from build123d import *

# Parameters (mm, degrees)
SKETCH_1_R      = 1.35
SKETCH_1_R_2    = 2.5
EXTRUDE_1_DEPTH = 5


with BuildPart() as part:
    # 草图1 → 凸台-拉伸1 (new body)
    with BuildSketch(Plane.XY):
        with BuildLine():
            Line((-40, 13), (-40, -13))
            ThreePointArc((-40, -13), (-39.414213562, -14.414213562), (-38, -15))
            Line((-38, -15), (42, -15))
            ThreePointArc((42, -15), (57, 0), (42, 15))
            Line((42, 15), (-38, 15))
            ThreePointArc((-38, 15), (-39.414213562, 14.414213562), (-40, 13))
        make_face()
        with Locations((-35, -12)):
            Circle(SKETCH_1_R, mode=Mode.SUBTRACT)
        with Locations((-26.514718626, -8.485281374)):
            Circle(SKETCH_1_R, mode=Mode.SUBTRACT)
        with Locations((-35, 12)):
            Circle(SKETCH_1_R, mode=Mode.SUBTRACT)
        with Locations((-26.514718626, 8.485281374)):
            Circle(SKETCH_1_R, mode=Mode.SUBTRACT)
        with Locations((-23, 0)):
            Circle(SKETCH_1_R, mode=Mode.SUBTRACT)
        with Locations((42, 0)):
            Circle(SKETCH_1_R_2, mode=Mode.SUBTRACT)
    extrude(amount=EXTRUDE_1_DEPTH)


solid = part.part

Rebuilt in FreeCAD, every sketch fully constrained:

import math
import FreeCAD as App
import Part
import Sketcher
Q = App.Units.Quantity

doc = App.newDocument("Part")
body = doc.addObject("PartDesign::Body", "Body")

sketch1 = body.newObject("Sketcher::SketchObject", "Sketch")
sketch1.AttachmentSupport = (doc.getObject("XY_Plane"), [""])
sketch1.MapMode = "FlatFace"
sketch1.addGeometry(Part.LineSegment(App.Vector(-40, 13, 0), App.Vector(-40, -13, 0)), False)
sketch1.addGeometry(Part.ArcOfCircle(Part.Circle(App.Vector(-38, -13, 0), App.Vector(0, 0, 1), 2), math.radians(-180), math.radians(-90)), False)
sketch1.addGeometry(Part.LineSegment(App.Vector(-38, -15, 0), App.Vector(42, -15, 0)), False)
sketch1.addGeometry(Part.ArcOfCircle(Part.Circle(App.Vector(42, 0, 0), App.Vector(0, 0, 1), 15), math.radians(-90), math.radians(90)), False)
sketch1.addGeometry(Part.LineSegment(App.Vector(42, 15, 0), App.Vector(-38, 15, 0)), False)
sketch1.addGeometry(Part.ArcOfCircle(Part.Circle(App.Vector(-38, 13, 0), App.Vector(0, 0, 1), 2), math.radians(90), math.radians(180)), False)
sketch1.addGeometry(Part.Circle(App.Vector(-35, -12, 0), App.Vector(0, 0, 1), 1.35), False)
sketch1.addGeometry(Part.Circle(App.Vector(-26.514719, -8.485281, 0), App.Vector(0, 0, 1), 1.35), False)
sketch1.addGeometry(Part.Circle(App.Vector(-23, 0, 0), App.Vector(0, 0, 1), 1.35), False)
sketch1.addGeometry(Part.Circle(App.Vector(-26.514719, 8.485281, 0), App.Vector(0, 0, 1), 1.35), False)
sketch1.addGeometry(Part.Circle(App.Vector(-35, 12, 0), App.Vector(0, 0, 1), 1.35), False)
sketch1.addGeometry(Part.Circle(App.Vector(42, 0, 0), App.Vector(0, 0, 1), 2.5), False)
sketch1.addConstraint(Sketcher.Constraint("Tangent", 0, 2, 1, 1))
sketch1.addConstraint(Sketcher.Constraint("Tangent", 1, 2, 2, 1))
sketch1.addConstraint(Sketcher.Constraint("Tangent", 2, 2, 3, 1))
sketch1.addConstraint(Sketcher.Constraint("Tangent", 3, 2, 4, 1))
sketch1.addConstraint(Sketcher.Constraint("Tangent", 4, 2, 5, 1))
sketch1.addConstraint(Sketcher.Constraint("Tangent", 5, 2, 0, 1))
sketch1.addConstraint(Sketcher.Constraint("Vertical", 0))
sketch1.addConstraint(Sketcher.Constraint("Horizontal", 2))
sketch1.addConstraint(Sketcher.Constraint("Horizontal", 4))
sketch1.addConstraint(Sketcher.Constraint("Coincident", 11, 3, 3, 3))
sketch1.addConstraint(Sketcher.Constraint("Equal", 1, 5))
sketch1.addConstraint(Sketcher.Constraint("Equal", 6, 7))
sketch1.addConstraint(Sketcher.Constraint("Equal", 7, 8))
sketch1.addConstraint(Sketcher.Constraint("Equal", 8, 9))
sketch1.addConstraint(Sketcher.Constraint("Equal", 9, 10))
sketch1.addConstraint(Sketcher.Constraint("Symmetric", 7, 3, 9, 3, -1))
sketch1.addConstraint(Sketcher.Constraint("Symmetric", 6, 3, 10, 3, -1))
sketch1.addConstraint(Sketcher.Constraint("PointOnObject", 3, 3, -1))
sketch1.addConstraint(Sketcher.Constraint("PointOnObject", 8, 3, -1))
sketch1.addConstraint(Sketcher.Constraint("Diameter", 11, Q("5 mm")))
sketch1.addConstraint(Sketcher.Constraint("Radius", 1, Q("2 mm")))
sketch1.addConstraint(Sketcher.Constraint("Radius", 3, Q("15 mm")))
sketch1.addConstraint(Sketcher.Constraint("Diameter", 6, Q("2.7 mm")))
sketch1.addConstraint(Sketcher.Constraint("DistanceX", 2, 1, 2, 2, Q("80 mm")))
sketch1.addConstraint(Sketcher.Constraint("DistanceX", 1, 3, -1, 1, Q("38 mm")))
sketch1.addConstraint(Sketcher.Constraint("DistanceX", 6, 3, -1, 1, Q("35 mm")))
sketch1.addConstraint(Sketcher.Constraint("DistanceY", 6, 3, -1, 1, Q("12 mm")))
sketch1.addConstraint(Sketcher.Constraint("DistanceX", 8, 3, -1, 1, Q("23 mm")))
sketch1.addConstraint(Sketcher.Constraint("DistanceX", 7, 3, -1, 1, Q("26.514719 mm")))
sketch1.addConstraint(Sketcher.Constraint("DistanceY", 7, 3, -1, 1, Q("8.485281 mm")))
pad1 = body.newObject("PartDesign::Pad", "Pad")
pad1.Profile = sketch1
pad1.Length = 5

doc.recompute()
